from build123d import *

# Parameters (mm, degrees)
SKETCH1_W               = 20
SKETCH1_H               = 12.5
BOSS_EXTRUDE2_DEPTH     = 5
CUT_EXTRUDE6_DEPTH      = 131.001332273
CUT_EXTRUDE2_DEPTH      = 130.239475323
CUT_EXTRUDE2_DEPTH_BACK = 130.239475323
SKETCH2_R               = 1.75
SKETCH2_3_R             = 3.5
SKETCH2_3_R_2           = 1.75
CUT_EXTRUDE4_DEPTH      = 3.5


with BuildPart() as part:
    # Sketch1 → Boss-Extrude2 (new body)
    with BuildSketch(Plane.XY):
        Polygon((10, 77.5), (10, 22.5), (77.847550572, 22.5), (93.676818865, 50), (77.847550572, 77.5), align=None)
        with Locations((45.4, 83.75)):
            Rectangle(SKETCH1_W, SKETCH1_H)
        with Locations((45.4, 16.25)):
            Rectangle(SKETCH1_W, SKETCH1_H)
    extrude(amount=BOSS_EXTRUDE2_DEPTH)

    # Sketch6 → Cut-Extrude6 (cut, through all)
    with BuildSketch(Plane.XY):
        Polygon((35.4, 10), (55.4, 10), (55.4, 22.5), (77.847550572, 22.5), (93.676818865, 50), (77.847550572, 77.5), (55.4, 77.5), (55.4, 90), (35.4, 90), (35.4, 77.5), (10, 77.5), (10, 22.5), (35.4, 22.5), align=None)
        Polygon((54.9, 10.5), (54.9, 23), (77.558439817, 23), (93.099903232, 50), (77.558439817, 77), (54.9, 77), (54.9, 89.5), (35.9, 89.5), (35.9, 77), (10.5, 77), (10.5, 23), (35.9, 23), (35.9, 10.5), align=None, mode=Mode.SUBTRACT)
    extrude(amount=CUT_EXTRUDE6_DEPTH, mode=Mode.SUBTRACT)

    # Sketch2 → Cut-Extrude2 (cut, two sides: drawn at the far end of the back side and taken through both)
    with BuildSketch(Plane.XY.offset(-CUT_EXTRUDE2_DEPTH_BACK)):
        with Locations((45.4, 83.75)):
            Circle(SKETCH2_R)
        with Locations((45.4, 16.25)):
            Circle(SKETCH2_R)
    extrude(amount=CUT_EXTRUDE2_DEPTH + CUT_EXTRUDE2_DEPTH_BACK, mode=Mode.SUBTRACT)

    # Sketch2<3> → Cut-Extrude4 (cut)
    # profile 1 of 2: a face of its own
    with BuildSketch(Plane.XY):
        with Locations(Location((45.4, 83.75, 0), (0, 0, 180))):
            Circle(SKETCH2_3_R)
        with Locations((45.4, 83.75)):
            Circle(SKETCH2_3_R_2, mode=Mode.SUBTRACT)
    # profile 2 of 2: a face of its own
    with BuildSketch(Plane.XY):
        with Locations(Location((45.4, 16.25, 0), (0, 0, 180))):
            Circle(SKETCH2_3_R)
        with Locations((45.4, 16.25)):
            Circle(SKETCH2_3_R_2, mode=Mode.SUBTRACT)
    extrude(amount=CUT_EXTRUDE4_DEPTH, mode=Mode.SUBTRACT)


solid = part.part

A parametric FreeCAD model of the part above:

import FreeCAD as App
import Part
import Sketcher

V = App.Vector


def add_polygon(sketch, points):
    """Adds a closed chain of lines whose ends are joined by coincident constraints."""
    first, n = sketch.GeometryCount, len(points)
    for a, b in zip(points, points[1:] + points[:1]):
        sketch.addGeometry(Part.LineSegment(App.Vector(*a, 0), App.Vector(*b, 0)), False)
    for i in range(n):
        sketch.addConstraint(Sketcher.Constraint("Coincident", first + i, 2, first + (i + 1) % n, 1))

doc = App.newDocument("Part")
body = doc.addObject("PartDesign::Body", "Body")

# Sketch on XY plane
sketch1 = body.newObject("Sketcher::SketchObject", "Sketch")
sketch1.AttachmentSupport = (doc.getObject("XY_Plane"), [""])
sketch1.MapMode = "FlatFace"
add_polygon(sketch1, [(10, 77.5), (10, 22.5), (35.4, 22.5), (35.4, 10), (55.4, 10), (55.4, 22.5), (77.847551, 22.5), (93.676819, 50), (77.847551, 77.5), (55.4, 77.5), (55.4, 90), (35.4, 90), (35.4, 77.5)])  # lines 0-12
sketch1.addConstraint([
    Sketcher.Constraint("Vertical", 0),
    Sketcher.Constraint("Horizontal", 1),
    Sketcher.Constraint("Vertical", 2),
    Sketcher.Constraint("Horizontal", 3),
    Sketcher.Constraint("Vertical", 4),
    Sketcher.Constraint("Horizontal", 5),
    Sketcher.Constraint("Horizontal", 8),
    Sketcher.Constraint("Vertical", 9),
    Sketcher.Constraint("Horizontal", 10),
    Sketcher.Constraint("Vertical", 11),
    Sketcher.Constraint("Horizontal", 12),
    Sketcher.Constraint("Horizontal", 1, 2, 4, 2),
    Sketcher.Constraint("Horizontal", 8, 2, 11, 2),
    Sketcher.Constraint("Vertical", 5, 2, 7, 2),
    Sketcher.Constraint("Vertical", 4, 2, 8, 2),
    Sketcher.Constraint("Vertical", 2, 2, 10, 2),
    Sketcher.Constraint("Equal", 4, 9),
    Sketcher.Constraint("Equal", 6, 7),
    Sketcher.Constraint("DistanceX", 3, 1, 3, 2, 20.0),
    Sketcher.Constraint("DistanceY", 0, 2, 0, 1, 55.0),
    Sketcher.Constraint("DistanceX", 1, 1, 1, 2, 25.4),
    Sketcher.Constraint("DistanceY", 2, 2, 2, 1, 12.5),
    Sketcher.Constraint("DistanceX", -1, 1, 0, 2, 10.0),
    Sketcher.Constraint("DistanceY", -1, 1, 2, 2, 10.0),
    Sketcher.Constraint("DistanceX", 5, 1, 5, 2, 22.447551),
    Sketcher.Constraint("Distance", 6, 31.73036),
])
pad1 = body.newObject("PartDesign::Pad", "Pad")
pad1.Profile = sketch1
pad1.Length = 5

# Sketch on XY plane
sketch2 = body.newObject("Sketcher::SketchObject", "Sketch001")
sketch2.AttachmentSupport = (doc.getObject("XY_Plane"), [""])
sketch2.MapMode = "FlatFace"
add_polygon(sketch2, [(35.4, 10), (55.4, 10), (55.4, 22.5), (77.847551, 22.5), (93.676819, 50), (77.847551, 77.5), (55.4, 77.5), (55.4, 90), (35.4, 90), (35.4, 77.5), (10, 77.5), (10, 22.5), (35.4, 22.5)])  # lines 0-12
add_polygon(sketch2, [(54.9, 23), (54.9, 10.5), (35.9, 10.5), (35.9, 23), (10.5, 23), (10.5, 77), (35.9, 77), (35.9, 89.5), (54.9, 89.5), (54.9, 77), (77.55844, 77), (93.099903, 50), (77.55844, 23)])  # lines 13-25
sketch2.addConstraint([
    Sketcher.Constraint("Horizontal", 0),
    Sketcher.Constraint("Vertical", 1),
    Sketcher.Constraint("Horizontal", 2),
    Sketcher.Constraint("Horizontal", 5),
    Sketcher.Constraint("Vertical", 6),
    Sketcher.Constraint("Horizontal", 7),
    Sketcher.Constraint("Vertical", 8),
    Sketcher.Constraint("Horizontal", 9),
    Sketcher.Constraint("Vertical", 10),
    Sketcher.Constraint("Horizontal", 11),
    Sketcher.Constraint("Vertical", 12),
    Sketcher.Constraint("Vertical", 13),
    Sketcher.Constraint("Horizontal", 14),
    Sketcher.Constraint("Vertical", 15),
    Sketcher.Constraint("Horizontal", 16),
    Sketcher.Constraint("Vertical", 17),
    Sketcher.Constraint("Horizontal", 18),
    Sketcher.Constraint("Vertical", 19),
    Sketcher.Constraint("Horizontal", 20),
    Sketcher.Constraint("Vertical", 21),
    Sketcher.Constraint("Horizontal", 22),
    Sketcher.Constraint("Horizontal", 25),
    Sketcher.Constraint("Parallel", 4, 23),
    Sketcher.Constraint("Parallel", 3, 24),
    Sketcher.Constraint("Horizontal", 5, 2, 8, 2),
    Sketcher.Constraint("Horizontal", 2, 2, 10, 2),
    Sketcher.Constraint("Horizontal", 18, 2, 21, 2),
    Sketcher.Constraint("Horizontal", 3, 2, 23, 2),
    Sketcher.Constraint("Horizontal", 16, 2, 24, 2),
    Sketcher.Constraint("Vertical", 2, 2, 4, 2),
    Sketcher.Constraint("Vertical", 1, 2, 5, 2),
    Sketcher.Constraint("Vertical", 8, 2, 11, 2),
    Sketcher.Constraint("Vertical", 15, 2, 18, 2),
    Sketcher.Constraint("Vertical", 13, 2, 20, 2),
    Sketcher.Constraint("Vertical", 22, 2, 24, 2),
    Sketcher.Constraint("Equal", 11, 16),
    Sketcher.Constraint("Equal", 1, 6),
    Sketcher.Constraint("Equal", 12, 13),
    Sketcher.Constraint("Equal", 15, 19),
    Sketcher.Constraint("Equal", 3, 4),
    Sketcher.Constraint("DistanceX", 0, 1, 0, 2, 20.0),
    Sketcher.Constraint("DistanceX", 14, 2, 14, 1, 19.0),
    Sketcher.Constraint("DistanceY", 10, 2, 10, 1, 55.0),
    Sketcher.Constraint("DistanceY", 17, 1, 17, 2, 54.0),
    Sketcher.Constraint("DistanceX", 9, 2, 9, 1, 25.4),
    Sketcher.Constraint("DistanceY", 1, 1, 1, 2, 12.5),
    Sketcher.Constraint("DistanceY", -1, 1, 0, 2, 10.0),
    Sketcher.Constraint("DistanceX", -1, 1, 9, 2, 10.0),
    Sketcher.Constraint("DistanceX", -1, 1, 13, 2, 54.9),
    Sketcher.Constraint("DistanceX", 2, 1, 2, 2, 22.447551),
    Sketcher.Constraint("DistanceX", 22, 1, 22, 2, 22.65844),
    Sketcher.Constraint("Distance", 3, 31.73036),
])
pocket1 = body.newObject("PartDesign::Pocket", "Pocket")
pocket1.Profile = sketch2
pocket1.Type = "ThroughAll"
pocket1.Reversed = True

# Sketch on XY plane
sketch3 = body.newObject("Sketcher::SketchObject", "Sketch002")
sketch3.AttachmentSupport = (doc.getObject("XY_Plane"), [""])
sketch3.MapMode = "FlatFace"
sketch3.addGeometry([
    Part.Circle(V(45.4, 83.75, 0), V(0, 0, 1), 1.75),
    Part.Circle(V(45.4, 16.25, 0), V(0, 0, 1), 1.75),
], False)
sketch3.addConstraint([
    Sketcher.Constraint("Equal", 0, 1),
    Sketcher.Constraint("Vertical", 0, 3, 1, 3),
    Sketcher.Constraint("Diameter", 0, 3.5),
    Sketcher.Constraint("DistanceX", -1, 1, 0, 3, 45.4),
    Sketcher.Constraint("DistanceY", 1, 3, 0, 3, 67.5),
    Sketcher.Constraint("DistanceY", -1, 1, 0, 3, 83.75),
])
pocket2 = body.newObject("PartDesign::Pocket", "Pocket001")
pocket2.Profile = sketch3
pocket2.Type = "ThroughAll"
pocket2.Midplane = True

# Sketch on XY plane
sketch4 = body.newObject("Sketcher::SketchObject", "Sketch003")
sketch4.AttachmentSupport = (doc.getObject("XY_Plane"), [""])
sketch4.MapMode = "FlatFace"
sketch4.addGeometry([
    Part.Circle(V(45.4, 83.75, 0), V(0, 0, 1), 3.5),
    Part.Circle(V(45.4, 83.75, 0), V(0, 0, 1), 1.75),
    Part.Circle(V(45.4, 16.25, 0), V(0, 0, 1), 3.5),
    Part.Circle(V(45.4, 16.25, 0), V(0, 0, 1), 1.75),
], False)
sketch4.addConstraint([
    Sketcher.Constraint("Coincident", 1, 3, 0, 3),
    Sketcher.Constraint("Coincident", 3, 3, 2, 3),
    Sketcher.Constraint("Equal", 0, 2),
    Sketcher.Constraint("Equal", 1, 3),
    Sketcher.Constraint("Vertical", 1, 3, 2, 3),
    Sketcher.Constraint("Diameter", 0, 7.0),
    Sketcher.Constraint("Diameter", 1, 3.5),
    Sketcher.Constraint("DistanceX", -1, 1, 0, 3, 45.4),
    Sketcher.Constraint("DistanceY", 2, 3, 0, 3, 67.5),
    Sketcher.Constraint("DistanceY", -1, 1, 0, 3, 83.75),
])
pocket3 = body.newObject("PartDesign::Pocket", "Pocket002")
pocket3.Profile = sketch4
pocket3.Length = 3.5
pocket3.Reversed = True

doc.recompute()
